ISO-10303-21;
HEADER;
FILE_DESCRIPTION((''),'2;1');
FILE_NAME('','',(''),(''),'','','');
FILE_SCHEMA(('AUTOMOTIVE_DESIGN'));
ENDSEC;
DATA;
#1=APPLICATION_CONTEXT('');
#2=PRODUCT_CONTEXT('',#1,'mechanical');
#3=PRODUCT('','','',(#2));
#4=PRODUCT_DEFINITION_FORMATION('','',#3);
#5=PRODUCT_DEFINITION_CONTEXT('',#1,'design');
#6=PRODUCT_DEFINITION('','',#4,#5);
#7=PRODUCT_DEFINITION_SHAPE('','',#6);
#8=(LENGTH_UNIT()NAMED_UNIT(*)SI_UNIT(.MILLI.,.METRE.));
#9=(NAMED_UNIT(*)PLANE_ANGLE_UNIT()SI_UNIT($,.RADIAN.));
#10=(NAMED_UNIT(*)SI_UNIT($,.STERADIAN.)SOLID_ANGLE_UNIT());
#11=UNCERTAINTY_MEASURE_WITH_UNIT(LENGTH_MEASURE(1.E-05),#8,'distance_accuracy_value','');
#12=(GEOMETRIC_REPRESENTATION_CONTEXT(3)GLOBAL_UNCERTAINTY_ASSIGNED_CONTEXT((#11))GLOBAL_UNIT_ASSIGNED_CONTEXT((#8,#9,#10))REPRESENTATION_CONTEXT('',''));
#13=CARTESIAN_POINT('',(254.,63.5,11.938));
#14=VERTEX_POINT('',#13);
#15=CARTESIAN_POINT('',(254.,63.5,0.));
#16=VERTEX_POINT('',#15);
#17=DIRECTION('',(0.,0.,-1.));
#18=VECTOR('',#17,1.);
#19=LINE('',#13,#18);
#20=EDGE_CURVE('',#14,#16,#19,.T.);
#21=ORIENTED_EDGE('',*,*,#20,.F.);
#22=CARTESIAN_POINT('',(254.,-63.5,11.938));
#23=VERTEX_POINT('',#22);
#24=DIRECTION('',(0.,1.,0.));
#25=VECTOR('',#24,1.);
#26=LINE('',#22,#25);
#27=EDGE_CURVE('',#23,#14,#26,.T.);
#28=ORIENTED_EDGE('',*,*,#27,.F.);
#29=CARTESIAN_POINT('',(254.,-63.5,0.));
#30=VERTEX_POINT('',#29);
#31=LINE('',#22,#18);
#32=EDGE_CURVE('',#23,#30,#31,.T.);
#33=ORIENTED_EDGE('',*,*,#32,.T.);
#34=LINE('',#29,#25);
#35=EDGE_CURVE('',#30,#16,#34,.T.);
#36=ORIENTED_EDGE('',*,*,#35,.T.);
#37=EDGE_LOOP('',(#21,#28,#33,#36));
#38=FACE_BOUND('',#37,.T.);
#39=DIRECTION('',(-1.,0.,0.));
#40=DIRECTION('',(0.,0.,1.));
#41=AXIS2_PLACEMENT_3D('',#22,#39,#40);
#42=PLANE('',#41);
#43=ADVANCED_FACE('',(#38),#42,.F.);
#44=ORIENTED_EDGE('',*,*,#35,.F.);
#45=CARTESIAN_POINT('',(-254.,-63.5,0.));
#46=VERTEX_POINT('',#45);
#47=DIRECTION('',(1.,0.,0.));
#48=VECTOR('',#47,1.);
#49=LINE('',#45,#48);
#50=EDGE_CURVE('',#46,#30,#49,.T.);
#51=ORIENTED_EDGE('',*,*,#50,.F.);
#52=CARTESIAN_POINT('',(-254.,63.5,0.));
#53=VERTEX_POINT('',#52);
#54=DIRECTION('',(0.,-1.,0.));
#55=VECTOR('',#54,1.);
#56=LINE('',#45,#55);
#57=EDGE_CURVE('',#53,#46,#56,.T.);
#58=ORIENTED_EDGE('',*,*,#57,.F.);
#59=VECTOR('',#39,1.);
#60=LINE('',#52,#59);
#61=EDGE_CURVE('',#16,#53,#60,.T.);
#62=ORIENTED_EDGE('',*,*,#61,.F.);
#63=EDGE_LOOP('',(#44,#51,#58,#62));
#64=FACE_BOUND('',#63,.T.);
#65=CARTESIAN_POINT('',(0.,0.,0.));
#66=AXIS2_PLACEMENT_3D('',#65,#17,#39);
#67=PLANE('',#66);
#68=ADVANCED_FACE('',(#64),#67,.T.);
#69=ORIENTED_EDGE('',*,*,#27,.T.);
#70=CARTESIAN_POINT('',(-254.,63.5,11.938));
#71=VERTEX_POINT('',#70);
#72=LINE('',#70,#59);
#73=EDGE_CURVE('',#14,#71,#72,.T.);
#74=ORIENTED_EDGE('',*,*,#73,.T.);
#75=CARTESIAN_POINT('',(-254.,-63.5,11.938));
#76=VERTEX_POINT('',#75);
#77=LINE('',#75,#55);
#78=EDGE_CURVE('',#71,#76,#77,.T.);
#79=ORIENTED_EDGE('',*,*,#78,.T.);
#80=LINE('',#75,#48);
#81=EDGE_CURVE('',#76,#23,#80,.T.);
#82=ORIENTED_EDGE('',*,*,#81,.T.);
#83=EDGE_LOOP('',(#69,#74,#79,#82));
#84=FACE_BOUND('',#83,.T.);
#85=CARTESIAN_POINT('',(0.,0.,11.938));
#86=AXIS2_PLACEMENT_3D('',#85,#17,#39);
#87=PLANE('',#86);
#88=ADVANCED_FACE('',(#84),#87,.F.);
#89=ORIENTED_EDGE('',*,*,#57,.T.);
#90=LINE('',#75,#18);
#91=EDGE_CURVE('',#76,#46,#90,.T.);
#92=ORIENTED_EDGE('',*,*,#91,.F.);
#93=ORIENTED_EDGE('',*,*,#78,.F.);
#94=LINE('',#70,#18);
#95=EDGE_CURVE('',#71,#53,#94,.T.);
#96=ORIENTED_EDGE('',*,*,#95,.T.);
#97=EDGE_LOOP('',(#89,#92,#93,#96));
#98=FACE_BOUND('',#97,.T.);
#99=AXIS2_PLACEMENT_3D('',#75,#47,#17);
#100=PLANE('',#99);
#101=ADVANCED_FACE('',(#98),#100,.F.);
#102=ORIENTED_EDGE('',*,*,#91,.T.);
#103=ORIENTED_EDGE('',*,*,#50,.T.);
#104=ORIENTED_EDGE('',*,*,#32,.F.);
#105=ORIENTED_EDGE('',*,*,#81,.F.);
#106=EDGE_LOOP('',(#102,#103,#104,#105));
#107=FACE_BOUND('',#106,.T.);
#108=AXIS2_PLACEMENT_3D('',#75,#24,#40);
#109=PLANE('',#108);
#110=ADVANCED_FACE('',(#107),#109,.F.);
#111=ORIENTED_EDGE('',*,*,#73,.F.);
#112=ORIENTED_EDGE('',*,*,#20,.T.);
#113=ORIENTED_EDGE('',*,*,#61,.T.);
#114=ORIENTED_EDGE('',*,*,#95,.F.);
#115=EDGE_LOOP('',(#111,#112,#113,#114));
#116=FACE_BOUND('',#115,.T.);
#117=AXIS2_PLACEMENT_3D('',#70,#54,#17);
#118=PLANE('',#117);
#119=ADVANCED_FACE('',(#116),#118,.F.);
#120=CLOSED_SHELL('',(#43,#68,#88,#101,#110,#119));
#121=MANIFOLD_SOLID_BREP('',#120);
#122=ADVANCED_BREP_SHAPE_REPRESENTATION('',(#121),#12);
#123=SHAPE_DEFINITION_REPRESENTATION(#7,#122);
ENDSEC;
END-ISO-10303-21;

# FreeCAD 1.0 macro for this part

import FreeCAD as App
import Part
import Sketcher
Q = App.Units.Quantity

doc = App.newDocument("Part")
body = doc.addObject("PartDesign::Body", "Body")

# Sketch on XY plane
sketch1 = body.newObject("Sketcher::SketchObject", "Sketch")
sketch1.AttachmentSupport = (doc.getObject("XY_Plane"), [""])
sketch1.MapMode = "FlatFace"
sketch1.addGeometry([
    Part.LineSegment(App.Vector(-254, 64, 0), App.Vector(-254, -64, 0)),
    Part.LineSegment(App.Vector(-254, -64, 0), App.Vector(254, -64, 0)),
    Part.LineSegment(App.Vector(254, -64, 0), App.Vector(254, 64, 0)),
    Part.LineSegment(App.Vector(254, 64, 0), App.Vector(-254, 64, 0)),
], False)
sketch1.addConstraint([
    Sketcher.Constraint("Coincident", 0, 2, 1, 1),
    Sketcher.Constraint("Coincident", 1, 2, 2, 1),
    Sketcher.Constraint("Coincident", 2, 2, 3, 1),
    Sketcher.Constraint("Coincident", 3, 2, 0, 1),
    Sketcher.Constraint("Vertical", 0),
    Sketcher.Constraint("Horizontal", 1),
    Sketcher.Constraint("Vertical", 2),
    Sketcher.Constraint("Horizontal", 3),
    Sketcher.Constraint("Symmetric", 0, 2, 2, 2, -1, 1),
    Sketcher.Constraint("DistanceX", 1, 1, 1, 2, Q("20 in")),
    Sketcher.Constraint("DistanceY", 0, 2, 0, 1, Q("5 in")),
])
pad1 = body.newObject("PartDesign::Pad", "Pad")
pad1.Profile = sketch1
pad1.Length = Q("0.47 in")

doc.recompute()
